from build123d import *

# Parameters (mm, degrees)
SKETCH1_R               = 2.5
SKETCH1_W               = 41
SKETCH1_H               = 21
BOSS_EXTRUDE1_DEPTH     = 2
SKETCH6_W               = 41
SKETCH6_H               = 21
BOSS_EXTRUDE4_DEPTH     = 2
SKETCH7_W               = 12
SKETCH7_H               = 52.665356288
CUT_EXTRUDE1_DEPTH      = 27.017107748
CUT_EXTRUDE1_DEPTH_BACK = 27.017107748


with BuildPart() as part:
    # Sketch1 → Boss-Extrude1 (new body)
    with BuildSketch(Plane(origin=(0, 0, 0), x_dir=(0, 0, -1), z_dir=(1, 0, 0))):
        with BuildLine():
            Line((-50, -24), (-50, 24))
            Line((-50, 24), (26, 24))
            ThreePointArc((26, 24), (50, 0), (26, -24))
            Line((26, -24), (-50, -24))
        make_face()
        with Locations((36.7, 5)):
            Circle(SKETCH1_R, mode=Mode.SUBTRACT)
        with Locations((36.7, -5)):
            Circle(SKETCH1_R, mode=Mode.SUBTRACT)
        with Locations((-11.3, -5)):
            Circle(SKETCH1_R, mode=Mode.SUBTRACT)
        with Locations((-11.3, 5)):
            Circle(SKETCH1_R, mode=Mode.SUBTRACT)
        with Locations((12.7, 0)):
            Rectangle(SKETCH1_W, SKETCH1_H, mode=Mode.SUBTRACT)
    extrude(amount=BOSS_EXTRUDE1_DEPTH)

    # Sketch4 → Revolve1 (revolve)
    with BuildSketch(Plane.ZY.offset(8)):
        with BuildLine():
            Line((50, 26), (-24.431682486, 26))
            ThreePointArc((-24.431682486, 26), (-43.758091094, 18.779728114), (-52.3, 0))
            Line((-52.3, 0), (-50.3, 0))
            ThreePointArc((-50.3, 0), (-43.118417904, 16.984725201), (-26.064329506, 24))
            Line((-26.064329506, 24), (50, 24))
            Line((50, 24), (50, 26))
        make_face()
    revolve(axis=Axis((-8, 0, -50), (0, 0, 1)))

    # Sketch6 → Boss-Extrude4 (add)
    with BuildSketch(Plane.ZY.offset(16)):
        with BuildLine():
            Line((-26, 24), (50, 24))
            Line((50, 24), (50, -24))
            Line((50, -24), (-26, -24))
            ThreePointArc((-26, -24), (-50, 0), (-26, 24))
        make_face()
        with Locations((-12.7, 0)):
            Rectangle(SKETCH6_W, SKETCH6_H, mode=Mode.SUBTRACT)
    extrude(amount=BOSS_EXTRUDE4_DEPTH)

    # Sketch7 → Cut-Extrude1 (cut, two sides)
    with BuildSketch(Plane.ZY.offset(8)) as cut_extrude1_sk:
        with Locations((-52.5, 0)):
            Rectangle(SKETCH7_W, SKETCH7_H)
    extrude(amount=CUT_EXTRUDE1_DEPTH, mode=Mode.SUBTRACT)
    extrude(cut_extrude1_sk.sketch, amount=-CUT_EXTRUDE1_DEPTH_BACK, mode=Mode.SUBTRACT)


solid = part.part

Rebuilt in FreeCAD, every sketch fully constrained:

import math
import FreeCAD as App
import Part
import Sketcher

doc = App.newDocument("Part")
body = doc.addObject("PartDesign::Body", "Body")

sketch1 = doc.addObject("Sketcher::SketchObject", "Sketch")
body.addObject(sketch1)
sketch1.AttachmentSupport = (doc.YZ_Plane, [""])
sketch1.MapMode = "FlatFace"
sketch1.addGeometry([
    Part.LineSegment(App.Vector(24, 50, 0), App.Vector(-24, 50, 0)),
    Part.LineSegment(App.Vector(-24, 50, 0), App.Vector(-24, -26, 0)),
    Part.ArcOfCircle(Part.Circle(App.Vector(0, -26, 0), App.Vector(0, 0, 1), 24), math.radians(180), math.radians(360)),
    Part.LineSegment(App.Vector(24, -26, 0), App.Vector(24, 50, 0)),
    Part.Circle(App.Vector(-5, -36.7, 0), App.Vector(0, 0, 1), 2.5),
    Part.Circle(App.Vector(-5, 11.3, 0), App.Vector(0, 0, 1), 2.5),
    Part.Circle(App.Vector(5, -36.7, 0), App.Vector(0, 0, 1), 2.5),
    Part.LineSegment(App.Vector(-10.5, 7.8, 0), App.Vector(10.5, 7.8, 0)),
    Part.LineSegment(App.Vector(10.5, 7.8, 0), App.Vector(10.5, -33.2, 0)),
    Part.LineSegment(App.Vector(10.5, -33.2, 0), App.Vector(-10.5, -33.2, 0)),
    Part.LineSegment(App.Vector(-10.5, -33.2, 0), App.Vector(-10.5, 7.8, 0)),
    Part.Circle(App.Vector(5, 11.3, 0), App.Vector(0, 0, 1), 2.5),
], False)
sketch1.addConstraint([
    Sketcher.Constraint("Coincident", 0, 2, 1, 1),
    Sketcher.Constraint("Tangent", 1, 2, 2, 1),
    Sketcher.Constraint("Tangent", 2, 2, 3, 1),
    Sketcher.Constraint("Coincident", 3, 2, 0, 1),
    Sketcher.Constraint("Coincident", 7, 2, 8, 1),
    Sketcher.Constraint("Coincident", 8, 2, 9, 1),
    Sketcher.Constraint("Coincident", 9, 2, 10, 1),
    Sketcher.Constraint("Coincident", 10, 2, 7, 1),
    Sketcher.Constraint("Horizontal", 0),
    Sketcher.Constraint("Vertical", 1),
    Sketcher.Constraint("Vertical", 3),
    Sketcher.Constraint("Horizontal", 7),
    Sketcher.Constraint("Vertical", 8),
    Sketcher.Constraint("Horizontal", 9),
    Sketcher.Constraint("Vertical", 10),
    Sketcher.Constraint("Equal", 4, 5),
    Sketcher.Constraint("Equal", 5, 6),
    Sketcher.Constraint("Equal", 6, 11),
    Sketcher.Constraint("Symmetric", 4, 3, 6, 3, -2),
    Sketcher.Constraint("Symmetric", 5, 3, 11, 3, -2),
    Sketcher.Constraint("PointOnObject", 2, 3, -2),
    Sketcher.Constraint("Vertical", 4, 3, 5, 3),
    Sketcher.Constraint("Diameter", 4, 5.0),
    Sketcher.Constraint("Radius", 2, 24.0),
    Sketcher.Constraint("DistanceX", 7, 1, 7, 2, 21.0),
    Sketcher.Constraint("DistanceY", 1, 2, 1, 1, 76.0),
    Sketcher.Constraint("DistanceY", 8, 2, 8, 1, 41.0),
    Sketcher.Constraint("DistanceY", 2, 3, -1, 1, 26.0),
    Sketcher.Constraint("DistanceX", 4, 3, -1, 1, 5.0),
    Sketcher.Constraint("DistanceY", 4, 3, 5, 3, 48.0),
    Sketcher.Constraint("DistanceY", 4, 3, -1, 1, 36.7),
    Sketcher.Constraint("DistanceX", -1, 1, 7, 2, 10.5),
    Sketcher.Constraint("DistanceY", -1, 1, 7, 2, 7.8),
])
pad1 = doc.addObject("PartDesign::Pad", "Pad")
body.addObject(pad1)
pad1.Profile = sketch1
pad1.Length = 2

sketch2 = doc.addObject("Sketcher::SketchObject", "Sketch001")
body.addObject(sketch2)
sketch2.AttachmentSupport = (doc.YZ_Plane, [""])
sketch2.MapMode = "FlatFace"
sketch2.AttachmentOffset = App.Placement(App.Vector(0, 0, -8), App.Rotation())
sketch2.addGeometry([
    Part.LineSegment(App.Vector(26, 50, 0), App.Vector(26, -24.4, 0)),
    Part.ArcOfCircle(Part.Circle(App.Vector(-0.9, -25.4, 0), App.Vector(0, 0, 1), 26.9), math.radians(-88), math.radians(2)),
    Part.LineSegment(App.Vector(0, -52.3, 0), App.Vector(0, -50.3, 0)),
    Part.ArcOfCircle(Part.Circle(App.Vector(-0.2, -26.1, 0), App.Vector(0, 0, 1), 24.2), math.radians(-89), math.radians(0)),
    Part.LineSegment(App.Vector(24, -26.1, 0), App.Vector(24, 50, 0)),
    Part.LineSegment(App.Vector(24, 50, 0), App.Vector(26, 50, 0)),
], False)
sketch2.addConstraint([
    Sketcher.Constraint("Coincident", 0, 2, 1, 2),
    Sketcher.Constraint("Coincident", 1, 1, 2, 1),
    Sketcher.Constraint("Coincident", 2, 2, 3, 1),
    Sketcher.Constraint("Tangent", 3, 2, 4, 1),
    Sketcher.Constraint("Coincident", 4, 2, 5, 1),
    Sketcher.Constraint("Coincident", 5, 2, 0, 1),
    Sketcher.Constraint("Vertical", 0),
    Sketcher.Constraint("Vertical", 2),
    Sketcher.Constraint("Vertical", 4),
    Sketcher.Constraint("Horizontal", 5),
    Sketcher.Constraint("PointOnObject", 1, 1, -2),
    Sketcher.Constraint("Equal", 5, 2),
    Sketcher.Constraint("DistanceX", 5, 1, 5, 2, 2.0),
    Sketcher.Constraint("DistanceX", -1, 1, 0, 2, 26.0),
    Sketcher.Constraint("DistanceY", -1, 1, 4, 2, 50.0),
    Sketcher.Constraint("DistanceY", 1, 1, -1, 1, 52.3),
    Sketcher.Constraint("Radius", 1, 26.923949),
    Sketcher.Constraint("Radius", 3, 24.236828),
    Sketcher.Constraint("DistanceY", 0, 2, 0, 1, 74.431682),
])
revolution = doc.addObject("PartDesign::Revolution", "Revolution")
body.addObject(revolution)
revolution.Profile = sketch2
revolution.ReferenceAxis = (sketch2, ["V_Axis"])
revolution.Angle = 360

sketch3 = doc.addObject("Sketcher::SketchObject", "Sketch002")
body.addObject(sketch3)
sketch3.AttachmentSupport = (doc.YZ_Plane, [""])
sketch3.MapMode = "FlatFace"
sketch3.AttachmentOffset = App.Placement(App.Vector(0, 0, -16), App.Rotation())
sketch3.addGeometry([
    Part.LineSegment(App.Vector(24, 50, 0), App.Vector(24, -26, 0)),
    Part.ArcOfCircle(Part.Circle(App.Vector(0, -26, 0), App.Vector(0, 0, 1), 24), math.radians(180), math.radians(360)),
    Part.LineSegment(App.Vector(-24, -26, 0), App.Vector(-24, 50, 0)),
    Part.LineSegment(App.Vector(-24, 50, 0), App.Vector(24, 50, 0)),
    Part.LineSegment(App.Vector(-10, -33, 0), App.Vector(10, -33, 0)),
    Part.LineSegment(App.Vector(10, -33, 0), App.Vector(10, 8, 0)),
    Part.LineSegment(App.Vector(10, 8, 0), App.Vector(-10, 8, 0)),
    Part.LineSegment(App.Vector(-10, 8, 0), App.Vector(-10, -33, 0)),
], False)
sketch3.addConstraint([
    Sketcher.Constraint("Tangent", 0, 2, 1, 2),
    Sketcher.Constraint("Tangent", 1, 1, 2, 1),
    Sketcher.Constraint("Coincident", 2, 2, 3, 1),
    Sketcher.Constraint("Coincident", 3, 2, 0, 1),
    Sketcher.Constraint("Coincident", 4, 2, 5, 1),
    Sketcher.Constraint("Coincident", 5, 2, 6, 1),
    Sketcher.Constraint("Coincident", 6, 2, 7, 1),
    Sketcher.Constraint("Coincident", 7, 2, 4, 1),
    Sketcher.Constraint("Vertical", 0),
    Sketcher.Constraint("Vertical", 2),
    Sketcher.Constraint("Horizontal", 3),
    Sketcher.Constraint("Horizontal", 4),
    Sketcher.Constraint("Vertical", 5),
    Sketcher.Constraint("Horizontal", 6),
    Sketcher.Constraint("Vertical", 7),
    Sketcher.Constraint("PointOnObject", 1, 3, -2),
    Sketcher.Constraint("Radius", 1, 24.0),
    Sketcher.Constraint("DistanceX", 4, 1, 4, 2, 21.0),
    Sketcher.Constraint("DistanceY", 0, 2, 0, 1, 76.0),
    Sketcher.Constraint("DistanceY", 5, 1, 5, 2, 41.0),
    Sketcher.Constraint("DistanceY", 1, 3, -1, 1, 26.0),
    Sketcher.Constraint("DistanceX", -1, 1, 4, 2, 10.5),
    Sketcher.Constraint("DistanceY", 4, 2, -1, 1, 33.2),
])
pad2 = doc.addObject("PartDesign::Pad", "Pad001")
body.addObject(pad2)
pad2.Profile = sketch3
pad2.Length = 2
pad2.Reversed = True

sketch4 = doc.addObject("Sketcher::SketchObject", "Sketch003")
body.addObject(sketch4)
sketch4.AttachmentSupport = (doc.YZ_Plane, [""])
sketch4.MapMode = "FlatFace"
sketch4.AttachmentOffset = App.Placement(App.Vector(0, 0, -8), App.Rotation())
sketch4.addGeometry([
    Part.LineSegment(App.Vector(26, -58, 0), App.Vector(-26, -58, 0)),
    Part.LineSegment(App.Vector(-26, -58, 0), App.Vector(-26, -46, 0)),
    Part.LineSegment(App.Vector(-26, -46, 0), App.Vector(26, -46, 0)),
    Part.LineSegment(App.Vector(26, -46, 0), App.Vector(26, -58, 0)),
], False)
sketch4.addConstraint([
    Sketcher.Constraint("Coincident", 0, 2, 1, 1),
    Sketcher.Constraint("Coincident", 1, 2, 2, 1),
    Sketcher.Constraint("Coincident", 2, 2, 3, 1),
    Sketcher.Constraint("Coincident", 3, 2, 0, 1),
    Sketcher.Constraint("Horizontal", 0),
    Sketcher.Constraint("Vertical", 1),
    Sketcher.Constraint("Horizontal", 2),
    Sketcher.Constraint("Vertical", 3),
    Sketcher.Constraint("DistanceY", 1, 1, 1, 2, 12.0),
    Sketcher.Constraint("DistanceY", 0, 2, -1, 1, 58.5),
    Sketcher.Constraint("DistanceX", 0, 2, 0, 1, 52.665356),
    Sketcher.Constraint("DistanceX", 0, 2, -1, 1, 26.332678),
])
pocket1 = doc.addObject("PartDesign::Pocket", "Pocket")
body.addObject(pocket1)
pocket1.Profile = sketch4
pocket1.Type = "ThroughAll"
pocket1.Midplane = True

doc.recompute()
